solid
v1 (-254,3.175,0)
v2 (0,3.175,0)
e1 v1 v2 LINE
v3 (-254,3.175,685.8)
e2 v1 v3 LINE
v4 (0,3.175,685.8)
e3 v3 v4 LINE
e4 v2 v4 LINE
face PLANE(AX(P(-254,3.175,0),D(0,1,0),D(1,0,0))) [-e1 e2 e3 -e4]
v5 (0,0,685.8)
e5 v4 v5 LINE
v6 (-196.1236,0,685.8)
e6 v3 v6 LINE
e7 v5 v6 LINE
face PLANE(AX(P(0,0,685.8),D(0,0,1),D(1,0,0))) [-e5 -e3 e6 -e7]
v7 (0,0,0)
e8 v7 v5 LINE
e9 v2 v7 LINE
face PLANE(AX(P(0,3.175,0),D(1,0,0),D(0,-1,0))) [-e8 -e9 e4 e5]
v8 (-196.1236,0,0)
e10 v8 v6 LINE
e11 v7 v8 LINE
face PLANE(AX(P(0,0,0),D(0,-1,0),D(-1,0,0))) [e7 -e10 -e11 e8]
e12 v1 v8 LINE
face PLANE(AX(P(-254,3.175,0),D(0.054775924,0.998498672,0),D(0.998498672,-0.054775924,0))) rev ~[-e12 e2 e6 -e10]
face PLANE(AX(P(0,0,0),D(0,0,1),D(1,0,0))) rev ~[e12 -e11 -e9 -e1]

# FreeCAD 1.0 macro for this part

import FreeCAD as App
import Part
import Sketcher
Q = App.Units.Quantity

doc = App.newDocument("Part")
body = doc.addObject("PartDesign::Body", "Body")

sketch1 = doc.addObject("Sketcher::SketchObject", "Sketch")
body.addObject(sketch1)
sketch1.AttachmentSupport = (doc.XY_Plane, [""])
sketch1.MapMode = "FlatFace"
sketch1.addGeometry([
    Part.LineSegment(App.Vector(-196.1, 0, 0), App.Vector(0, 0, 0)),
    Part.LineSegment(App.Vector(0, 0, 0), App.Vector(0, 3.2, 0)),
    Part.LineSegment(App.Vector(0, 3.2, 0), App.Vector(-254, 3.2, 0)),
    Part.LineSegment(App.Vector(-254, 3.2, 0), App.Vector(-196.1, 0, 0)),
], False)
sketch1.addConstraint([
    Sketcher.Constraint("Coincident", 0, 2, 1, 1),
    Sketcher.Constraint("Coincident", 1, 2, 2, 1),
    Sketcher.Constraint("Coincident", 2, 2, 3, 1),
    Sketcher.Constraint("Coincident", 3, 2, 0, 1),
    Sketcher.Constraint("Horizontal", 0),
    Sketcher.Constraint("Vertical", 1),
    Sketcher.Constraint("Horizontal", 2),
    Sketcher.Constraint("Coincident", 0, 2, -1, 1),
    Sketcher.Constraint("DistanceX", 2, 2, 2, 1, Q("10 in")),
    Sketcher.Constraint("DistanceY", 1, 1, 1, 2, Q("0.125 in")),
    Sketcher.Constraint("Angle", 3, Q("-3.14 deg")),
])
pad1 = doc.addObject("PartDesign::Pad", "Pad")
body.addObject(pad1)
pad1.Profile = sketch1
pad1.Length = Q("27 in")

doc.recompute()
